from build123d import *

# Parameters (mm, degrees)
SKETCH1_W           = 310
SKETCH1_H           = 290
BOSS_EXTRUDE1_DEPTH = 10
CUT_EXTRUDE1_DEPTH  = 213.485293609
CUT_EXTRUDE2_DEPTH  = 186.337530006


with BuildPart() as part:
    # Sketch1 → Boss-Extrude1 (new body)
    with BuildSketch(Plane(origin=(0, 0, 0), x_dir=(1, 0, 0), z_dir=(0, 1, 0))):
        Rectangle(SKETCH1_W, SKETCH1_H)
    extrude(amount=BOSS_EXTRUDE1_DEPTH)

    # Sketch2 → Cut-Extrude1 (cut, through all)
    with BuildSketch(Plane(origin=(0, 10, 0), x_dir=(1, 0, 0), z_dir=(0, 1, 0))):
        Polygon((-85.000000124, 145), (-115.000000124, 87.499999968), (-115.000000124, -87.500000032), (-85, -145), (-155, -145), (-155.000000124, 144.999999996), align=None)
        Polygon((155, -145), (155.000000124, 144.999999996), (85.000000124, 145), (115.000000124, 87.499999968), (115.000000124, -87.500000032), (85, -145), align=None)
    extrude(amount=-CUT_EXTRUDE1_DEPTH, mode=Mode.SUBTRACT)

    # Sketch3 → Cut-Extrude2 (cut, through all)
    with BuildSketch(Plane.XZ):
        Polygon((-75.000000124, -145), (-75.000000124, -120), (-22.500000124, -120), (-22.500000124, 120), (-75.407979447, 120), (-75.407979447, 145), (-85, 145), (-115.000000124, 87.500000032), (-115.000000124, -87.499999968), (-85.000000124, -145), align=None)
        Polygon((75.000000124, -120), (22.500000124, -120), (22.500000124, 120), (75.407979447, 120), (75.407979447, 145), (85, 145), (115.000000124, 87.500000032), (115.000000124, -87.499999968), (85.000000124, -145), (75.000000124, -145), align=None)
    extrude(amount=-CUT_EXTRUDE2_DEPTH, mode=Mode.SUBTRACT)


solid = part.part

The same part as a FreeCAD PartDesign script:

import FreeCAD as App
import Part
import Sketcher
from FreeCAD import Vector
Q = App.Units.Quantity

doc = App.newDocument("Part")
body = doc.addObject("PartDesign::Body", "Body")

sketch1 = doc.addObject("Sketcher::SketchObject", "Sketch")
body.addObject(sketch1)
sketch1.AttachmentSupport = (doc.XZ_Plane, [""])
sketch1.MapMode = "FlatFace"
sketch1.addGeometry([
    Part.LineSegment(Vector(-155, -145, 0), Vector(-155, 145, 0)),
    Part.LineSegment(Vector(-155, 145, 0), Vector(155, 145, 0)),
    Part.LineSegment(Vector(155, 145, 0), Vector(155, -145, 0)),
    Part.LineSegment(Vector(155, -145, 0), Vector(-155, -145, 0)),
], False)
sketch1.addConstraint([
    Sketcher.Constraint("Coincident", 0, 2, 1, 1),
    Sketcher.Constraint("Coincident", 1, 2, 2, 1),
    Sketcher.Constraint("Coincident", 2, 2, 3, 1),
    Sketcher.Constraint("Coincident", 3, 2, 0, 1),
    Sketcher.Constraint("Vertical", 0),
    Sketcher.Constraint("Horizontal", 1),
    Sketcher.Constraint("Vertical", 2),
    Sketcher.Constraint("Horizontal", 3),
    Sketcher.Constraint("Symmetric", 0, 2, 2, 2, -1, 1),
    Sketcher.Constraint("DistanceX", 1, 1, 1, 2, Q("310 mm")),
    Sketcher.Constraint("DistanceY", 0, 1, 0, 2, Q("290 mm")),
])
pad1 = doc.addObject("PartDesign::Pad", "Pad")
body.addObject(pad1)
pad1.Profile = sketch1
pad1.Length = 10
pad1.Reversed = True

sketch2 = doc.addObject("Sketcher::SketchObject", "Sketch001")
body.addObject(sketch2)
sketch2.AttachmentSupport = (doc.XZ_Plane, [""])
sketch2.MapMode = "FlatFace"
sketch2.AttachmentOffset = App.Placement(Vector(0, 0, -10), App.Rotation())
sketch2.addGeometry([
    Part.LineSegment(Vector(-115, -87.5, 0), Vector(-85, -145, 0)),
    Part.LineSegment(Vector(-85, -145, 0), Vector(-155, -145, 0)),
    Part.LineSegment(Vector(-155, -145, 0), Vector(-155, 145, 0)),
    Part.LineSegment(Vector(-155, 145, 0), Vector(-85, 145, 0)),
    Part.LineSegment(Vector(-85, 145, 0), Vector(-115, 87.5, 0)),
    Part.LineSegment(Vector(-115, 87.5, 0), Vector(-115, -87.5, 0)),
    Part.LineSegment(Vector(155, 145, 0), Vector(155, -145, 0)),
    Part.LineSegment(Vector(155, -145, 0), Vector(85, -145, 0)),
    Part.LineSegment(Vector(85, -145, 0), Vector(115, -87.5, 0)),
    Part.LineSegment(Vector(115, -87.5, 0), Vector(115, 87.5, 0)),
    Part.LineSegment(Vector(115, 87.5, 0), Vector(85, 145, 0)),
    Part.LineSegment(Vector(85, 145, 0), Vector(155, 145, 0)),
], False)
sketch2.addConstraint([
    Sketcher.Constraint("Coincident", 0, 2, 1, 1),
    Sketcher.Constraint("Coincident", 1, 2, 2, 1),
    Sketcher.Constraint("Coincident", 2, 2, 3, 1),
    Sketcher.Constraint("Coincident", 3, 2, 4, 1),
    Sketcher.Constraint("Coincident", 4, 2, 5, 1),
    Sketcher.Constraint("Coincident", 5, 2, 0, 1),
    Sketcher.Constraint("Coincident", 6, 2, 7, 1),
    Sketcher.Constraint("Coincident", 7, 2, 8, 1),
    Sketcher.Constraint("Coincident", 8, 2, 9, 1),
    Sketcher.Constraint("Coincident", 9, 2, 10, 1),
    Sketcher.Constraint("Coincident", 10, 2, 11, 1),
    Sketcher.Constraint("Coincident", 11, 2, 6, 1),
    Sketcher.Constraint("Horizontal", 1),
    Sketcher.Constraint("Vertical", 2),
    Sketcher.Constraint("Horizontal", 3),
    Sketcher.Constraint("Vertical", 5),
    Sketcher.Constraint("Vertical", 6),
    Sketcher.Constraint("Horizontal", 7),
    Sketcher.Constraint("Vertical", 9),
    Sketcher.Constraint("Horizontal", 11),
    Sketcher.Constraint("Symmetric", 2, 2, 6, 2, -1, 1),
    Sketcher.Constraint("Symmetric", 4, 2, 8, 2, -1, 1),
    Sketcher.Constraint("Symmetric", 0, 2, 10, 2, -1, 1),
    Sketcher.Constraint("Symmetric", 0, 2, 7, 2, -2),
    Sketcher.Constraint("Parallel", 4, 8),
    Sketcher.Constraint("Parallel", 0, 10),
    Sketcher.Constraint("Horizontal", 5, 2, 8, 2),
    Sketcher.Constraint("DistanceX", 1, 2, 1, 1, Q("70 mm")),
    Sketcher.Constraint("DistanceY", 2, 1, 2, 2, Q("290 mm")),
    Sketcher.Constraint("DistanceY", 5, 2, 5, 1, Q("175 mm")),
    Sketcher.Constraint("DistanceX", 0, 2, -1, 1, Q("85 mm")),
    Sketcher.Constraint("DistanceX", 4, 2, -1, 1, Q("115 mm")),
])
pocket1 = doc.addObject("PartDesign::Pocket", "Pocket")
body.addObject(pocket1)
pocket1.Profile = sketch2
pocket1.Type = "ThroughAll"
pocket1.Reversed = True

sketch3 = doc.addObject("Sketcher::SketchObject", "Sketch002")
body.addObject(sketch3)
sketch3.AttachmentSupport = (doc.XZ_Plane, [""])
sketch3.MapMode = "FlatFace"
sketch3.addGeometry([
    Part.LineSegment(Vector(-75, -145, 0), Vector(-75, -120, 0)),
    Part.LineSegment(Vector(-75, -120, 0), Vector(-22.5, -120, 0)),
    Part.LineSegment(Vector(-22.5, -120, 0), Vector(-22.5, 120, 0)),
    Part.LineSegment(Vector(-22.5, 120, 0), Vector(-75.407979, 120, 0)),
    Part.LineSegment(Vector(-75.407979, 120, 0), Vector(-75.407979, 145, 0)),
    Part.LineSegment(Vector(-75.407979, 145, 0), Vector(-85, 145, 0)),
    Part.LineSegment(Vector(-85, 145, 0), Vector(-115, 87.5, 0)),
    Part.LineSegment(Vector(-115, 87.5, 0), Vector(-115, -87.5, 0)),
    Part.LineSegment(Vector(-115, -87.5, 0), Vector(-85, -145, 0)),
    Part.LineSegment(Vector(-85, -145, 0), Vector(-75, -145, 0)),
    Part.LineSegment(Vector(22.5, -120, 0), Vector(75, -120, 0)),
    Part.LineSegment(Vector(75, -120, 0), Vector(75, -145, 0)),
    Part.LineSegment(Vector(75, -145, 0), Vector(85, -145, 0)),
    Part.LineSegment(Vector(85, -145, 0), Vector(115, -87.5, 0)),
    Part.LineSegment(Vector(115, -87.5, 0), Vector(115, 87.5, 0)),
    Part.LineSegment(Vector(115, 87.5, 0), Vector(85, 145, 0)),
    Part.LineSegment(Vector(85, 145, 0), Vector(75.407979, 145, 0)),
    Part.LineSegment(Vector(75.407979, 145, 0), Vector(75.407979, 120, 0)),
    Part.LineSegment(Vector(75.407979, 120, 0), Vector(22.5, 120, 0)),
    Part.LineSegment(Vector(22.5, 120, 0), Vector(22.5, -120, 0)),
], False)
sketch3.addConstraint([
    Sketcher.Constraint("Coincident", 0, 2, 1, 1),
    Sketcher.Constraint("Coincident", 1, 2, 2, 1),
    Sketcher.Constraint("Coincident", 2, 2, 3, 1),
    Sketcher.Constraint("Coincident", 3, 2, 4, 1),
    Sketcher.Constraint("Coincident", 4, 2, 5, 1),
    Sketcher.Constraint("Coincident", 5, 2, 6, 1),
    Sketcher.Constraint("Coincident", 6, 2, 7, 1),
    Sketcher.Constraint("Coincident", 7, 2, 8, 1),
    Sketcher.Constraint("Coincident", 8, 2, 9, 1),
    Sketcher.Constraint("Coincident", 9, 2, 0, 1),
    Sketcher.Constraint("Coincident", 10, 2, 11, 1),
    Sketcher.Constraint("Coincident", 11, 2, 12, 1),
    Sketcher.Constraint("Coincident", 12, 2, 13, 1),
    Sketcher.Constraint("Coincident", 13, 2, 14, 1),
    Sketcher.Constraint("Coincident", 14, 2, 15, 1),
    Sketcher.Constraint("Coincident", 15, 2, 16, 1),
    Sketcher.Constraint("Coincident", 16, 2, 17, 1),
    Sketcher.Constraint("Coincident", 17, 2, 18, 1),
    Sketcher.Constraint("Coincident", 18, 2, 19, 1),
    Sketcher.Constraint("Coincident", 19, 2, 10, 1),
    Sketcher.Constraint("Vertical", 0),
    Sketcher.Constraint("Horizontal", 1),
    Sketcher.Constraint("Vertical", 2),
    Sketcher.Constraint("Horizontal", 3),
    Sketcher.Constraint("Vertical", 4),
    Sketcher.Constraint("Horizontal", 5),
    Sketcher.Constraint("Vertical", 7),
    Sketcher.Constraint("Horizontal", 9),
    Sketcher.Constraint("Horizontal", 10),
    Sketcher.Constraint("Vertical", 11),
    Sketcher.Constraint("Horizontal", 12),
    Sketcher.Constraint("Vertical", 14),
    Sketcher.Constraint("Horizontal", 16),
    Sketcher.Constraint("Vertical", 17),
    Sketcher.Constraint("Horizontal", 18),
    Sketcher.Constraint("Vertical", 19),
    Sketcher.Constraint("Symmetric", 5, 2, 12, 2, -1, 1),
    Sketcher.Constraint("Symmetric", 6, 2, 13, 2, -1, 1),
    Sketcher.Constraint("Symmetric", 8, 2, 15, 2, -1, 1),
    Sketcher.Constraint("Symmetric", 1, 2, 18, 2, -1, 1),
    Sketcher.Constraint("Symmetric", 0, 2, 10, 2, -2),
    Sketcher.Constraint("Symmetric", 8, 2, 12, 2, -2),
    Sketcher.Constraint("Symmetric", 3, 2, 17, 2, -2),
    Sketcher.Constraint("Parallel", 8, 15),
    Sketcher.Constraint("Horizontal", 7, 2, 13, 2),
    Sketcher.Constraint("DistanceX", 9, 1, 9, 2, Q("10 mm")),
    Sketcher.Constraint("DistanceY", 0, 1, 0, 2, Q("25 mm")),
    Sketcher.Constraint("DistanceY", 2, 1, 2, 2, Q("240 mm")),
    Sketcher.Constraint("DistanceY", 7, 2, 7, 1, Q("175 mm")),
    Sketcher.Constraint("DistanceX", 1, 1, 1, 2, Q("52.5 mm")),
    Sketcher.Constraint("DistanceX", 0, 2, -1, 1, Q("75 mm")),
    Sketcher.Constraint("DistanceX", 6, 2, -1, 1, Q("115 mm")),
    Sketcher.Constraint("DistanceX", 3, 2, 3, 1, Q("52.907979 mm")),
])
pocket2 = doc.addObject("PartDesign::Pocket", "Pocket001")
body.addObject(pocket2)
pocket2.Profile = sketch3
pocket2.Type = "ThroughAll"

doc.recompute()
